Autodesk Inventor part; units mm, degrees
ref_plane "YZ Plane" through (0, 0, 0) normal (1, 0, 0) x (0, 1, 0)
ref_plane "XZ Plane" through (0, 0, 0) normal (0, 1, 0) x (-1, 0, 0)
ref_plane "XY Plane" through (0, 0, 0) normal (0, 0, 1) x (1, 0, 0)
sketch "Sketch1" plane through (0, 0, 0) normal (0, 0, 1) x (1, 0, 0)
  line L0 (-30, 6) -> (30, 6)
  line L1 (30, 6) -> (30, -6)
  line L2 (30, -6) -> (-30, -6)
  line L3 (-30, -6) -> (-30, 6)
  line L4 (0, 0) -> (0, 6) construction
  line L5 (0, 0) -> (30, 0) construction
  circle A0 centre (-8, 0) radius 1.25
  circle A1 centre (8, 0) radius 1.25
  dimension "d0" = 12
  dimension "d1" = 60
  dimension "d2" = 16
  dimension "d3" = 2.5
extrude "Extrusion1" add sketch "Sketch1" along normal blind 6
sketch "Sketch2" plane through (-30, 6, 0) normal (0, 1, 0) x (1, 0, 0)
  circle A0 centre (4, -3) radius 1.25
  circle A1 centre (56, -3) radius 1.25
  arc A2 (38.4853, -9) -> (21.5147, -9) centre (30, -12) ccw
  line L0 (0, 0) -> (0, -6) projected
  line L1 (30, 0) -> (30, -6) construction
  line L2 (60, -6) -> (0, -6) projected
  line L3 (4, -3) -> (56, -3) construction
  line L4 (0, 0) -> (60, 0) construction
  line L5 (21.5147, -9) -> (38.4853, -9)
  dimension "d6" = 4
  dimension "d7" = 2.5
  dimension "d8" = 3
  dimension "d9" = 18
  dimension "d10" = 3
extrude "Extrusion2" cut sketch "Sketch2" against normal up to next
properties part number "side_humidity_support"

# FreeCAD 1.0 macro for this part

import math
import FreeCAD as App
import Part
import Sketcher

V = App.Vector
Q = App.Units.Quantity

doc = App.newDocument("Part")
params = doc.addObject("Spreadsheet::Sheet", "Params")
for row, (alias, value) in enumerate([
    ("sketch1_diameter", "2.5 mm"),
    ("sketch1_width", "60 mm"),
    ("sketch1_height", "12 mm"),
    ("pad1_length", "6 mm"),
    ("sketch2_radius", "9 mm"),
    ("sketch2_diameter", "2.5 mm"),
    ("pocket1_length", "12 mm"),
], start=1):
    params.set(f"A{row}", alias)
    params.set(f"B{row}", "=" + value)
    params.setAlias(f"B{row}", alias)

body = doc.addObject("PartDesign::Body", "Body")

# Sketch on XY plane
sketch1 = body.newObject("Sketcher::SketchObject", "Sketch")
sketch1.AttachmentSupport = (doc.getObject("XY_Plane"), [""])
sketch1.MapMode = "FlatFace"
sketch1.addGeometry(Part.LineSegment(V(30, 6, 0), V(-30, 6, 0)), False)
sketch1.addGeometry(Part.LineSegment(V(-30, 6, 0), V(-30, -6, 0)), False)
sketch1.addGeometry(Part.LineSegment(V(-30, -6, 0), V(30, -6, 0)), False)
sketch1.addGeometry(Part.LineSegment(V(30, -6, 0), V(30, 6, 0)), False)
sketch1.addGeometry(Part.Circle(V(-8, 0, 0), V(0, 0, 1), 1.25), False)
sketch1.addGeometry(Part.Circle(V(8, 0, 0), V(0, 0, 1), 1.25), False)
sketch1.addConstraint(Sketcher.Constraint("Coincident", 0, 2, 1, 1))
sketch1.addConstraint(Sketcher.Constraint("Coincident", 1, 2, 2, 1))
sketch1.addConstraint(Sketcher.Constraint("Coincident", 2, 2, 3, 1))
sketch1.addConstraint(Sketcher.Constraint("Coincident", 3, 2, 0, 1))
sketch1.addConstraint(Sketcher.Constraint("Horizontal", 0))
sketch1.addConstraint(Sketcher.Constraint("Vertical", 1))
sketch1.addConstraint(Sketcher.Constraint("Horizontal", 2))
sketch1.addConstraint(Sketcher.Constraint("Vertical", 3))
sketch1.addConstraint(Sketcher.Constraint("Equal", 4, 5))
sketch1.addConstraint(Sketcher.Constraint("Symmetric", 4, 3, 5, 3, -1, 1))
sketch1.addConstraint(Sketcher.Constraint("Symmetric", 0, 2, 2, 2, -1, 1))
sketch1.addConstraint(Sketcher.Constraint("PointOnObject", 4, 3, -1))
sketch1.addConstraint(Sketcher.Constraint("Diameter", 4, Q("2.5 mm")))
sketch1.addConstraint(Sketcher.Constraint("DistanceX", 0, 2, 0, 1, Q("60 mm")))
sketch1.addConstraint(Sketcher.Constraint("DistanceY", 1, 2, 1, 1, Q("12 mm")))
sketch1.addConstraint(Sketcher.Constraint("DistanceX", 4, 3, 5, 3, Q("16 mm")))
sketch1.setExpression("Constraints[12]", "Params.sketch1_diameter")
sketch1.setExpression("Constraints[13]", "Params.sketch1_width")
sketch1.setExpression("Constraints[14]", "Params.sketch1_height")
pad1 = body.newObject("PartDesign::Pad", "Pad")
pad1.Profile = sketch1
pad1.setExpression("Length", "Params.pad1_length")

# Sketch on XZ plane
sketch2 = body.newObject("Sketcher::SketchObject", "Sketch001")
sketch2.AttachmentSupport = (doc.getObject("XZ_Plane"), [""])
sketch2.MapMode = "FlatFace"
sketch2.AttachmentOffset = App.Placement(V(0, 0, -6), App.Rotation())
sketch2.addGeometry(Part.Circle(V(-26, 3, 0), V(0, 0, 1), 1.25), False)
sketch2.addGeometry(Part.Circle(V(26, 3, 0), V(0, 0, 1), 1.25), False)
sketch2.addGeometry(Part.LineSegment(V(-8.4853, 9, 0), V(8.4853, 9, 0)), False)
sketch2.addGeometry(Part.ArcOfCircle(Part.Circle(V(0, 12, 0), V(0, 0, 1), 9.000018), math.radians(-160.528819), math.radians(-19.471181)), False)
sketch2.addConstraint(Sketcher.Constraint("Coincident", 2, 1, 3, 1))
sketch2.addConstraint(Sketcher.Constraint("Coincident", 3, 2, 2, 2))
sketch2.addConstraint(Sketcher.Constraint("Horizontal", 2))
sketch2.addConstraint(Sketcher.Constraint("Equal", 0, 1))
sketch2.addConstraint(Sketcher.Constraint("Symmetric", 0, 3, 1, 3, -2))
sketch2.addConstraint(Sketcher.Constraint("PointOnObject", 3, 3, -2))
sketch2.addConstraint(Sketcher.Constraint("Radius", 3, Q("9 mm")))
sketch2.addConstraint(Sketcher.Constraint("Diameter", 0, Q("2.5 mm")))
sketch2.addConstraint(Sketcher.Constraint("DistanceY", -1, 1, 0, 3, Q("3 mm")))
sketch2.addConstraint(Sketcher.Constraint("DistanceY", 2, 1, 3, 3, Q("3 mm")))
sketch2.addConstraint(Sketcher.Constraint("DistanceX", 0, 3, -1, 1, Q("26 mm")))
sketch2.addConstraint(Sketcher.Constraint("DistanceY", -1, 1, 3, 3, Q("12 mm")))
sketch2.setExpression("Constraints[6]", "Params.sketch2_radius")
sketch2.setExpression("Constraints[7]", "Params.sketch2_diameter")
pocket1 = body.newObject("PartDesign::Pocket", "Pocket")
pocket1.Profile = sketch2
pocket1.setExpression("Length", "Params.pocket1_length")
pocket1.Reversed = True

doc.recompute()
